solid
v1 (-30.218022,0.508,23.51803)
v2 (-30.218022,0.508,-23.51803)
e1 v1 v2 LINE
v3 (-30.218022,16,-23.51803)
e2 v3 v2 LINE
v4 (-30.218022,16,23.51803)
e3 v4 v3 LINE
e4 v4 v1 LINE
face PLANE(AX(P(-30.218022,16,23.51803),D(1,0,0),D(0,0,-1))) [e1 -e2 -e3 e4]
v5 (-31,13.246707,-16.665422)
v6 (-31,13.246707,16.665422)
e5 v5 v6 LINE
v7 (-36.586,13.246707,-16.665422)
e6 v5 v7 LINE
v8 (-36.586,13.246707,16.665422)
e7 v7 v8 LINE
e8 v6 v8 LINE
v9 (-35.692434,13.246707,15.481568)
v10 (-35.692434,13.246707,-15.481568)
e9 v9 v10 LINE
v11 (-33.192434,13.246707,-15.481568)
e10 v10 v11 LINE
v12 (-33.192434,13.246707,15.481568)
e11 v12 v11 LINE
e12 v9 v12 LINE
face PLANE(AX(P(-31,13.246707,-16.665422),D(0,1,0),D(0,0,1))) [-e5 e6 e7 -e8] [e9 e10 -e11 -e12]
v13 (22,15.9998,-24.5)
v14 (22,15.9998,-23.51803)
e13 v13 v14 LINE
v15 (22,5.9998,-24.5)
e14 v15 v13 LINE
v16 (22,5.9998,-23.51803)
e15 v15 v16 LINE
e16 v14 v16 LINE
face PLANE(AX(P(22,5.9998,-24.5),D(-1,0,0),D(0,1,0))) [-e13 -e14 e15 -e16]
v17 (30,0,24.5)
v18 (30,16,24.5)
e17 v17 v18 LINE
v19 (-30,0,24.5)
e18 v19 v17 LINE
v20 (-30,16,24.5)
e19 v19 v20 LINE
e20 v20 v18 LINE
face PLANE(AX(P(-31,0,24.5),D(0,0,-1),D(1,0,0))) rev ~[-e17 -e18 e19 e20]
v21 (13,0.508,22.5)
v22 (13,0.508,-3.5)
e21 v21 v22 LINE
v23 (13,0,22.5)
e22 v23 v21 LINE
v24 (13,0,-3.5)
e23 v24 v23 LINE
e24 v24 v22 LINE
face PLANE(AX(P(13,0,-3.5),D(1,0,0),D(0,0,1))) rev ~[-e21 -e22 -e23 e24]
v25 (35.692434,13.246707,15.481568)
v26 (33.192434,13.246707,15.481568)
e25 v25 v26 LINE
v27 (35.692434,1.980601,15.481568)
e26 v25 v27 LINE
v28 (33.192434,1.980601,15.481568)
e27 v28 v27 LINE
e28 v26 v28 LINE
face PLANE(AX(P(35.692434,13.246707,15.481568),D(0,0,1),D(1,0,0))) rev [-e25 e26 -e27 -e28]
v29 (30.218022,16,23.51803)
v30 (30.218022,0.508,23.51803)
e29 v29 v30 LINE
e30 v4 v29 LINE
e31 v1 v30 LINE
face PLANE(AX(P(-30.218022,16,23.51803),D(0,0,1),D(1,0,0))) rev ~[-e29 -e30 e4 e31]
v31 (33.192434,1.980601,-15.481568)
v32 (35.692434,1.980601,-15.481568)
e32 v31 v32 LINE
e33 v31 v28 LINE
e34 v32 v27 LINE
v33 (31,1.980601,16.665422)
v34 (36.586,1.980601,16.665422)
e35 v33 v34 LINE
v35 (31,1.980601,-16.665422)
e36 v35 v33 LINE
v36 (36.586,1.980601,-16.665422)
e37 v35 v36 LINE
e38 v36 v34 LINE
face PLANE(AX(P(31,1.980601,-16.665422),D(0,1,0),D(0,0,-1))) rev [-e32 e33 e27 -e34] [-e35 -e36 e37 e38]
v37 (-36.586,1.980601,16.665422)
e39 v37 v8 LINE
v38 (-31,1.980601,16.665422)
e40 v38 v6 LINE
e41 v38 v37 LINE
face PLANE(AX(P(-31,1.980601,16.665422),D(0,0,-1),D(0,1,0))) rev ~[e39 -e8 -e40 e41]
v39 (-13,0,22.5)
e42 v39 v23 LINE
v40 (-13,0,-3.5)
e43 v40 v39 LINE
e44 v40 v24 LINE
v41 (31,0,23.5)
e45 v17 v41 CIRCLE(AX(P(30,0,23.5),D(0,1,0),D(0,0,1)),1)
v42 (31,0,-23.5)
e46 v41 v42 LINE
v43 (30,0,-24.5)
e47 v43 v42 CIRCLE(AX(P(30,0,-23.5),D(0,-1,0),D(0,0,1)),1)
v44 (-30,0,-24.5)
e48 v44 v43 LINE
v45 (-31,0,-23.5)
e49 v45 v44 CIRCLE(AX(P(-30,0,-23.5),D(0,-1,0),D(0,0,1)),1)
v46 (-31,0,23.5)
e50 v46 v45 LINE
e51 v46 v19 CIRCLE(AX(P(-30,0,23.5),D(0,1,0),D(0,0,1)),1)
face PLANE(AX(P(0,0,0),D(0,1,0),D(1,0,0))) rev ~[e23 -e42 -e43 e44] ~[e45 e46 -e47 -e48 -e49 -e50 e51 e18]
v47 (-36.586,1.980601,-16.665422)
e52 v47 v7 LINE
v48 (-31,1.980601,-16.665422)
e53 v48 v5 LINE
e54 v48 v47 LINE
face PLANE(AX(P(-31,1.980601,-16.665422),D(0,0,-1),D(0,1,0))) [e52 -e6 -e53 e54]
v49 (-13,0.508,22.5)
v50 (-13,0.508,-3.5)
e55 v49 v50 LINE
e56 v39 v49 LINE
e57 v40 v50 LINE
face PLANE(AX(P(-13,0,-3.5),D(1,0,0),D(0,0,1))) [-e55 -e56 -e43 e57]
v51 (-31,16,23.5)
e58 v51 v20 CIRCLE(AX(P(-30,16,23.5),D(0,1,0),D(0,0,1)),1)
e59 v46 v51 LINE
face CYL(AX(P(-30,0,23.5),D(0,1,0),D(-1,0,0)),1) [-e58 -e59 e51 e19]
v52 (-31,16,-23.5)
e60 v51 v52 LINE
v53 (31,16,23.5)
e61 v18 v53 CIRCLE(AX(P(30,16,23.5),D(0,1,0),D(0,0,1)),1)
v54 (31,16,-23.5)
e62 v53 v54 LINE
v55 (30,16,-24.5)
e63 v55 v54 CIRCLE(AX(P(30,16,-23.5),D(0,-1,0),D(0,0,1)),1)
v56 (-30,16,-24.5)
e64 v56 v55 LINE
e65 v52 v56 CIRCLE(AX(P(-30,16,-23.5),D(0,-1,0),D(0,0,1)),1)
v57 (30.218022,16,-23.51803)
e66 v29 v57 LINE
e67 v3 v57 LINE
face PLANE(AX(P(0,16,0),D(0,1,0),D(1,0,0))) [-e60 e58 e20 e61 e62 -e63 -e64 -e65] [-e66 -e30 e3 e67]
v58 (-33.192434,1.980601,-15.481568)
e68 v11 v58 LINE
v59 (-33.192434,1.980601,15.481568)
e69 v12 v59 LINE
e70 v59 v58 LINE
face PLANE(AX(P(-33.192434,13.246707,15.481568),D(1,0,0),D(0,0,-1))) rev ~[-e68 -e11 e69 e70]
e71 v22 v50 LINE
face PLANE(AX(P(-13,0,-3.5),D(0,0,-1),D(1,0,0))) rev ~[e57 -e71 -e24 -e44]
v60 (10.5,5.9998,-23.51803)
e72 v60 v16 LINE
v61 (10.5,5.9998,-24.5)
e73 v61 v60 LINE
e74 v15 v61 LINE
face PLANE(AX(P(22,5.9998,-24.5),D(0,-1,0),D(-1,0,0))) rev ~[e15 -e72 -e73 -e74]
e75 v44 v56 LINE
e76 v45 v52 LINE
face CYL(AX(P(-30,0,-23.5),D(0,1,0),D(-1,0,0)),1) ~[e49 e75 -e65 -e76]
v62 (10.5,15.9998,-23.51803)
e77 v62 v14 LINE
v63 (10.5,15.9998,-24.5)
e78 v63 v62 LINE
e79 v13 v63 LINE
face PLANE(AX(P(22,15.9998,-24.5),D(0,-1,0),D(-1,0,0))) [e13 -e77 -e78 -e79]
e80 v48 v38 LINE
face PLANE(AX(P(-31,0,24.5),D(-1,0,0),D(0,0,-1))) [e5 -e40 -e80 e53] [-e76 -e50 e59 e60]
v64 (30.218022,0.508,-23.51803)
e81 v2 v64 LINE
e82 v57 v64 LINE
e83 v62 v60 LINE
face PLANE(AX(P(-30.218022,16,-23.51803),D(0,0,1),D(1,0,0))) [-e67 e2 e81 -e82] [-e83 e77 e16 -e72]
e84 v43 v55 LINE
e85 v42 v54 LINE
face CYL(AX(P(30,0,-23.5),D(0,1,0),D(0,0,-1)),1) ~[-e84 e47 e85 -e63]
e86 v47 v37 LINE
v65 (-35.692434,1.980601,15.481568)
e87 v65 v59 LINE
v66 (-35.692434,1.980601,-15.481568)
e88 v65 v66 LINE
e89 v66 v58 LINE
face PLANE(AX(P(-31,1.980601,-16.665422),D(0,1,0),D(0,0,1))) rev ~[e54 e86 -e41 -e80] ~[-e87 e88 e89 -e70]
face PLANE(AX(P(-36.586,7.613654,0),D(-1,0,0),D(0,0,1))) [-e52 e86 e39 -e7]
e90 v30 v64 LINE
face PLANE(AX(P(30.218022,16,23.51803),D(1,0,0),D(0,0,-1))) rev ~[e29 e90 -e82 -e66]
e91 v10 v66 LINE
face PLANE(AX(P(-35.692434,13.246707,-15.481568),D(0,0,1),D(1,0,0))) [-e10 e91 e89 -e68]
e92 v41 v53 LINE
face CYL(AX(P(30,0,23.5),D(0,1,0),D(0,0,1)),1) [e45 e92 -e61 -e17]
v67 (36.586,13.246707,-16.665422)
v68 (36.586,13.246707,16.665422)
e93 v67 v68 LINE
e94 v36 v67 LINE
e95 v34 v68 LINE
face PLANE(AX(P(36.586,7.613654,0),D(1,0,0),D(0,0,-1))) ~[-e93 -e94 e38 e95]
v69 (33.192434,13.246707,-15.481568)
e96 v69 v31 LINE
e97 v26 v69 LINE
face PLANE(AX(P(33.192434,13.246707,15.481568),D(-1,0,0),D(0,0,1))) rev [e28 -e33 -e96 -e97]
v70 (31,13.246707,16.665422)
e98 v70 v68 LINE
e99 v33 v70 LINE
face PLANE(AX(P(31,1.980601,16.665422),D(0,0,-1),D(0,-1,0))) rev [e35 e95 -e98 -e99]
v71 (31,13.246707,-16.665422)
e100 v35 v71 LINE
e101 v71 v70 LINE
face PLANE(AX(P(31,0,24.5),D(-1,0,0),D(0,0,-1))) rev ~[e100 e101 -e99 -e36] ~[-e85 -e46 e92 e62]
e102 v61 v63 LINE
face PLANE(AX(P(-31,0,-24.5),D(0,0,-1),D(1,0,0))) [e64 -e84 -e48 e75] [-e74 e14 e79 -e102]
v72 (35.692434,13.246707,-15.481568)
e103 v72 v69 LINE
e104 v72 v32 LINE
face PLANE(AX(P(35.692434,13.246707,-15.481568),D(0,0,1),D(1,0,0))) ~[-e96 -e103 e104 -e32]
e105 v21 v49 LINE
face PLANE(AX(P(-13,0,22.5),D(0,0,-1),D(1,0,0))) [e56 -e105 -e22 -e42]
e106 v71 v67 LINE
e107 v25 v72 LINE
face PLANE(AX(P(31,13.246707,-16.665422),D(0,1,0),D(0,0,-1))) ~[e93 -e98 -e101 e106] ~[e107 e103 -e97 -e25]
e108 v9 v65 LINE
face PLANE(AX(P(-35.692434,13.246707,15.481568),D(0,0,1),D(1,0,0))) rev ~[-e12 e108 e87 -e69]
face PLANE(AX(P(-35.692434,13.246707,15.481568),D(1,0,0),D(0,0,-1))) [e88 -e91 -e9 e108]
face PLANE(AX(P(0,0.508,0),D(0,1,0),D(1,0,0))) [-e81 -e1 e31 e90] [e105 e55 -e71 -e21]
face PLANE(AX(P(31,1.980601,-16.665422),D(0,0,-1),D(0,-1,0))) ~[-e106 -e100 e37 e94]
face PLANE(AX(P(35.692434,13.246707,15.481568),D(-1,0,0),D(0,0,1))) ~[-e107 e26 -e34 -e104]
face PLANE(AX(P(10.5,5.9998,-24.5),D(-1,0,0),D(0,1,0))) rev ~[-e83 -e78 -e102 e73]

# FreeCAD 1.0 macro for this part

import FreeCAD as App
import Part
import Sketcher

V = App.Vector


def edges_at(feature, points):
    """Names of the edges that pass closest to the given points."""
    edges = feature.Shape.Edges
    near = lambda p: min(range(len(edges)), key=lambda i: edges[i].distToShape(Part.Vertex(*p))[0])
    return sorted({f"Edge{near(p) + 1}" for p in points})


def add_polygon(sketch, points):
    """Adds a closed chain of lines whose ends are joined by coincident constraints."""
    first, n = sketch.GeometryCount, len(points)
    for a, b in zip(points, points[1:] + points[:1]):
        sketch.addGeometry(Part.LineSegment(App.Vector(*a, 0), App.Vector(*b, 0)), False)
    for i in range(n):
        sketch.addConstraint(Sketcher.Constraint("Coincident", first + i, 2, first + (i + 1) % n, 1))

doc = App.newDocument("Part")
params = doc.addObject("Spreadsheet::Sheet", "Params")
for row, (alias, value) in enumerate([
    ("sketch1_width", "62 mm"),
    ("sketch1_height", "49 mm"),
    ("pad1_length", "16 mm"),
    ("pocket1_length", "15.492 mm"),
    ("sketch3_width", "26 mm"),
    ("pocket2_length", "1.014 mm"),
    ("sketch4_height", "10 mm"),
    ("sketch4_width", "11.5 mm"),
    ("pocket3_length", "1.014 mm"),
    ("fillet_radius", "1 mm"),
    ("pad2_length", "5.586 mm"),
    ("sketch6_width", "2.5 mm"),
    ("pocket4_length", "13.714 mm"),
], start=1):
    params.set(f"A{row}", alias)
    params.set(f"B{row}", "=" + value)
    params.setAlias(f"B{row}", alias)

body = doc.addObject("PartDesign::Body", "Body")

# Sketch on XZ plane
sketch1 = body.newObject("Sketcher::SketchObject", "Sketch")
sketch1.AttachmentSupport = (doc.getObject("XZ_Plane"), [""])
sketch1.MapMode = "FlatFace"
add_polygon(sketch1, [(-31, -24), (-31, 24), (31, 24), (31, -24)])  # lines 0-3
sketch1.addConstraint([
    Sketcher.Constraint("Vertical", 0),
    Sketcher.Constraint("Horizontal", 1),
    Sketcher.Constraint("Vertical", 2),
    Sketcher.Constraint("Horizontal", 3),
    Sketcher.Constraint("Symmetric", 0, 2, 2, 2, -1, 1),
    Sketcher.Constraint("DistanceX", 1, 1, 1, 2, 62.0),
    Sketcher.Constraint("DistanceY", 0, 1, 0, 2, 49.0),
])
sketch1.setExpression("Constraints[9]", "Params.sketch1_width")
sketch1.setExpression("Constraints[10]", "Params.sketch1_height")
pad1 = body.newObject("PartDesign::Pad", "Pad")
pad1.Profile = sketch1
pad1.setExpression("Length", "Params.pad1_length")
pad1.Reversed = True

# Sketch on XZ plane
sketch2 = body.newObject("Sketcher::SketchObject", "Sketch001")
sketch2.AttachmentSupport = (doc.getObject("XZ_Plane"), [""])
sketch2.MapMode = "FlatFace"
sketch2.AttachmentOffset = App.Placement(V(0, 0, -16), App.Rotation())
add_polygon(sketch2, [(-30, -24), (-30, 24), (30, 24), (30, -24)])  # lines 0-3
sketch2.addConstraint([
    Sketcher.Constraint("Vertical", 0),
    Sketcher.Constraint("Horizontal", 1),
    Sketcher.Constraint("Vertical", 2),
    Sketcher.Constraint("Horizontal", 3),
    Sketcher.Constraint("Symmetric", 0, 2, 2, 2, -1, 1),
    Sketcher.Constraint("DistanceY", 0, 1, 0, 2, 47.03606),
    Sketcher.Constraint("DistanceX", 1, 1, 1, 2, 60.436044),
])
pocket1 = body.newObject("PartDesign::Pocket", "Pocket")
pocket1.Profile = sketch2
pocket1.setExpression("Length", "Params.pocket1_length")
pocket1.Reversed = True

# Sketch on XZ plane
sketch3 = body.newObject("Sketcher::SketchObject", "Sketch002")
sketch3.AttachmentSupport = (doc.getObject("XZ_Plane"), [""])
sketch3.MapMode = "FlatFace"
add_polygon(sketch3, [(-13, 22), (-13, -4), (13, -4), (13, 22)])  # lines 0-3
sketch3.addConstraint([
    Sketcher.Constraint("Vertical", 0),
    Sketcher.Constraint("Horizontal", 1),
    Sketcher.Constraint("Vertical", 2),
    Sketcher.Constraint("Horizontal", 3),
    Sketcher.Constraint("Equal", 3, 0),
    Sketcher.Constraint("DistanceX", 1, 1, 1, 2, 26.0),
    Sketcher.Constraint("DistanceX", 0, 2, -1, 1, 13.0),
    Sketcher.Constraint("DistanceY", 0, 2, -1, 1, 3.5),
])
sketch3.setExpression("Constraints[9]", "Params.sketch3_width")
pocket2 = body.newObject("PartDesign::Pocket", "Pocket001")
pocket2.Profile = sketch3
pocket2.setExpression("Length", "Params.pocket2_length")

# Sketch on XY plane
sketch4 = body.newObject("Sketcher::SketchObject", "Sketch003")
sketch4.AttachmentSupport = (doc.getObject("XY_Plane"), [""])
sketch4.MapMode = "FlatFace"
sketch4.AttachmentOffset = App.Placement(V(0, 0, -24.5), App.Rotation())
add_polygon(sketch4, [(22, 16), (22, 6), (10, 6), (10, 16)])  # lines 0-3
sketch4.addConstraint([
    Sketcher.Constraint("Vertical", 0),
    Sketcher.Constraint("Horizontal", 1),
    Sketcher.Constraint("Vertical", 2),
    Sketcher.Constraint("Horizontal", 3),
    Sketcher.Constraint("DistanceY", 0, 2, 0, 1, 10.0),
    Sketcher.Constraint("DistanceX", 1, 2, 1, 1, 11.5),
    Sketcher.Constraint("DistanceX", -1, 1, 0, 2, 22.0),
    Sketcher.Constraint("DistanceY", -1, 1, 0, 2, 5.9998),
])
sketch4.setExpression("Constraints[8]", "Params.sketch4_height")
sketch4.setExpression("Constraints[9]", "Params.sketch4_width")
pocket3 = body.newObject("PartDesign::Pocket", "Pocket002")
pocket3.Profile = sketch4
pocket3.setExpression("Length", "Params.pocket3_length")
pocket3.Reversed = True
doc.recompute()

fillet = body.newObject("PartDesign::Fillet", "Fillet")
fillet.Base = (pocket3, edges_at(pocket3, [
    (31, 8, 24.5),
    (-31, 8, 24.5),
    (-31, 8, -24.5),
    (31, 8, -24.5),
]))
fillet.setExpression("Radius", "Params.fillet_radius")

# Sketch on YZ plane
sketch5 = body.newObject("Sketcher::SketchObject", "Sketch004")
sketch5.AttachmentSupport = (doc.getObject("YZ_Plane"), [""])
sketch5.MapMode = "FlatFace"
sketch5.AttachmentOffset = App.Placement(V(0, 0, -31), App.Rotation())
add_polygon(sketch5, [(13, -17), (2, -17), (2, 17), (13, 17)])  # lines 0-3
sketch5.addConstraint([
    Sketcher.Constraint("Horizontal", 0),
    Sketcher.Constraint("Vertical", 1),
    Sketcher.Constraint("Horizontal", 2),
    Sketcher.Constraint("Vertical", 3),
    Sketcher.Constraint("DistanceX", -1, 1, 0, 2, 1.980601),
    Sketcher.Constraint("DistanceX", 0, 2, 0, 1, 11.266106),
    Sketcher.Constraint("DistanceY", 1, 1, 1, 2, 33.330844),
    Sketcher.Constraint("DistanceY", 0, 2, -1, 1, 16.665422),
])
pad2 = body.newObject("PartDesign::Pad", "Pad001")
pad2.Profile = sketch5
pad2.setExpression("Length", "Params.pad2_length")
pad2.Reversed = True

# Sketch on XZ plane
sketch6 = body.newObject("Sketcher::SketchObject", "Sketch005")
sketch6.AttachmentSupport = (doc.getObject("XZ_Plane"), [""])
sketch6.MapMode = "FlatFace"
sketch6.AttachmentOffset = App.Placement(V(0, 0, -13.246707), App.Rotation())
add_polygon(sketch6, [(-35.7, -15.5), (-35.7, 15.5), (-33.2, 15.5), (-33.2, -15.5)])  # lines 0-3
sketch6.addConstraint([
    Sketcher.Constraint("Vertical", 0),
    Sketcher.Constraint("Horizontal", 1),
    Sketcher.Constraint("Vertical", 2),
    Sketcher.Constraint("Horizontal", 3),
    Sketcher.Constraint("DistanceX", 1, 1, 1, 2, 2.5),
    Sketcher.Constraint("DistanceY", 0, 1, 0, 2, 30.963136),
    Sketcher.Constraint("DistanceX", 0, 2, -1, 1, 35.692434),
    Sketcher.Constraint("DistanceY", -1, 1, 0, 2, 15.481568),
])
sketch6.setExpression("Constraints[8]", "Params.sketch6_width")
pocket4 = body.newObject("PartDesign::Pocket", "Pocket003")
pocket4.Profile = sketch6
pocket4.setExpression("Length", "Params.pocket4_length")
pocket4.Reversed = True
doc.recompute()

mirrored = body.newObject("PartDesign::Mirrored", "Mirrored")
mirrored.Originals = [pad2, pocket4]
mirrored.MirrorPlane = (doc.getObject("YZ_Plane"), [""])
body.Tip = mirrored

doc.recompute()
